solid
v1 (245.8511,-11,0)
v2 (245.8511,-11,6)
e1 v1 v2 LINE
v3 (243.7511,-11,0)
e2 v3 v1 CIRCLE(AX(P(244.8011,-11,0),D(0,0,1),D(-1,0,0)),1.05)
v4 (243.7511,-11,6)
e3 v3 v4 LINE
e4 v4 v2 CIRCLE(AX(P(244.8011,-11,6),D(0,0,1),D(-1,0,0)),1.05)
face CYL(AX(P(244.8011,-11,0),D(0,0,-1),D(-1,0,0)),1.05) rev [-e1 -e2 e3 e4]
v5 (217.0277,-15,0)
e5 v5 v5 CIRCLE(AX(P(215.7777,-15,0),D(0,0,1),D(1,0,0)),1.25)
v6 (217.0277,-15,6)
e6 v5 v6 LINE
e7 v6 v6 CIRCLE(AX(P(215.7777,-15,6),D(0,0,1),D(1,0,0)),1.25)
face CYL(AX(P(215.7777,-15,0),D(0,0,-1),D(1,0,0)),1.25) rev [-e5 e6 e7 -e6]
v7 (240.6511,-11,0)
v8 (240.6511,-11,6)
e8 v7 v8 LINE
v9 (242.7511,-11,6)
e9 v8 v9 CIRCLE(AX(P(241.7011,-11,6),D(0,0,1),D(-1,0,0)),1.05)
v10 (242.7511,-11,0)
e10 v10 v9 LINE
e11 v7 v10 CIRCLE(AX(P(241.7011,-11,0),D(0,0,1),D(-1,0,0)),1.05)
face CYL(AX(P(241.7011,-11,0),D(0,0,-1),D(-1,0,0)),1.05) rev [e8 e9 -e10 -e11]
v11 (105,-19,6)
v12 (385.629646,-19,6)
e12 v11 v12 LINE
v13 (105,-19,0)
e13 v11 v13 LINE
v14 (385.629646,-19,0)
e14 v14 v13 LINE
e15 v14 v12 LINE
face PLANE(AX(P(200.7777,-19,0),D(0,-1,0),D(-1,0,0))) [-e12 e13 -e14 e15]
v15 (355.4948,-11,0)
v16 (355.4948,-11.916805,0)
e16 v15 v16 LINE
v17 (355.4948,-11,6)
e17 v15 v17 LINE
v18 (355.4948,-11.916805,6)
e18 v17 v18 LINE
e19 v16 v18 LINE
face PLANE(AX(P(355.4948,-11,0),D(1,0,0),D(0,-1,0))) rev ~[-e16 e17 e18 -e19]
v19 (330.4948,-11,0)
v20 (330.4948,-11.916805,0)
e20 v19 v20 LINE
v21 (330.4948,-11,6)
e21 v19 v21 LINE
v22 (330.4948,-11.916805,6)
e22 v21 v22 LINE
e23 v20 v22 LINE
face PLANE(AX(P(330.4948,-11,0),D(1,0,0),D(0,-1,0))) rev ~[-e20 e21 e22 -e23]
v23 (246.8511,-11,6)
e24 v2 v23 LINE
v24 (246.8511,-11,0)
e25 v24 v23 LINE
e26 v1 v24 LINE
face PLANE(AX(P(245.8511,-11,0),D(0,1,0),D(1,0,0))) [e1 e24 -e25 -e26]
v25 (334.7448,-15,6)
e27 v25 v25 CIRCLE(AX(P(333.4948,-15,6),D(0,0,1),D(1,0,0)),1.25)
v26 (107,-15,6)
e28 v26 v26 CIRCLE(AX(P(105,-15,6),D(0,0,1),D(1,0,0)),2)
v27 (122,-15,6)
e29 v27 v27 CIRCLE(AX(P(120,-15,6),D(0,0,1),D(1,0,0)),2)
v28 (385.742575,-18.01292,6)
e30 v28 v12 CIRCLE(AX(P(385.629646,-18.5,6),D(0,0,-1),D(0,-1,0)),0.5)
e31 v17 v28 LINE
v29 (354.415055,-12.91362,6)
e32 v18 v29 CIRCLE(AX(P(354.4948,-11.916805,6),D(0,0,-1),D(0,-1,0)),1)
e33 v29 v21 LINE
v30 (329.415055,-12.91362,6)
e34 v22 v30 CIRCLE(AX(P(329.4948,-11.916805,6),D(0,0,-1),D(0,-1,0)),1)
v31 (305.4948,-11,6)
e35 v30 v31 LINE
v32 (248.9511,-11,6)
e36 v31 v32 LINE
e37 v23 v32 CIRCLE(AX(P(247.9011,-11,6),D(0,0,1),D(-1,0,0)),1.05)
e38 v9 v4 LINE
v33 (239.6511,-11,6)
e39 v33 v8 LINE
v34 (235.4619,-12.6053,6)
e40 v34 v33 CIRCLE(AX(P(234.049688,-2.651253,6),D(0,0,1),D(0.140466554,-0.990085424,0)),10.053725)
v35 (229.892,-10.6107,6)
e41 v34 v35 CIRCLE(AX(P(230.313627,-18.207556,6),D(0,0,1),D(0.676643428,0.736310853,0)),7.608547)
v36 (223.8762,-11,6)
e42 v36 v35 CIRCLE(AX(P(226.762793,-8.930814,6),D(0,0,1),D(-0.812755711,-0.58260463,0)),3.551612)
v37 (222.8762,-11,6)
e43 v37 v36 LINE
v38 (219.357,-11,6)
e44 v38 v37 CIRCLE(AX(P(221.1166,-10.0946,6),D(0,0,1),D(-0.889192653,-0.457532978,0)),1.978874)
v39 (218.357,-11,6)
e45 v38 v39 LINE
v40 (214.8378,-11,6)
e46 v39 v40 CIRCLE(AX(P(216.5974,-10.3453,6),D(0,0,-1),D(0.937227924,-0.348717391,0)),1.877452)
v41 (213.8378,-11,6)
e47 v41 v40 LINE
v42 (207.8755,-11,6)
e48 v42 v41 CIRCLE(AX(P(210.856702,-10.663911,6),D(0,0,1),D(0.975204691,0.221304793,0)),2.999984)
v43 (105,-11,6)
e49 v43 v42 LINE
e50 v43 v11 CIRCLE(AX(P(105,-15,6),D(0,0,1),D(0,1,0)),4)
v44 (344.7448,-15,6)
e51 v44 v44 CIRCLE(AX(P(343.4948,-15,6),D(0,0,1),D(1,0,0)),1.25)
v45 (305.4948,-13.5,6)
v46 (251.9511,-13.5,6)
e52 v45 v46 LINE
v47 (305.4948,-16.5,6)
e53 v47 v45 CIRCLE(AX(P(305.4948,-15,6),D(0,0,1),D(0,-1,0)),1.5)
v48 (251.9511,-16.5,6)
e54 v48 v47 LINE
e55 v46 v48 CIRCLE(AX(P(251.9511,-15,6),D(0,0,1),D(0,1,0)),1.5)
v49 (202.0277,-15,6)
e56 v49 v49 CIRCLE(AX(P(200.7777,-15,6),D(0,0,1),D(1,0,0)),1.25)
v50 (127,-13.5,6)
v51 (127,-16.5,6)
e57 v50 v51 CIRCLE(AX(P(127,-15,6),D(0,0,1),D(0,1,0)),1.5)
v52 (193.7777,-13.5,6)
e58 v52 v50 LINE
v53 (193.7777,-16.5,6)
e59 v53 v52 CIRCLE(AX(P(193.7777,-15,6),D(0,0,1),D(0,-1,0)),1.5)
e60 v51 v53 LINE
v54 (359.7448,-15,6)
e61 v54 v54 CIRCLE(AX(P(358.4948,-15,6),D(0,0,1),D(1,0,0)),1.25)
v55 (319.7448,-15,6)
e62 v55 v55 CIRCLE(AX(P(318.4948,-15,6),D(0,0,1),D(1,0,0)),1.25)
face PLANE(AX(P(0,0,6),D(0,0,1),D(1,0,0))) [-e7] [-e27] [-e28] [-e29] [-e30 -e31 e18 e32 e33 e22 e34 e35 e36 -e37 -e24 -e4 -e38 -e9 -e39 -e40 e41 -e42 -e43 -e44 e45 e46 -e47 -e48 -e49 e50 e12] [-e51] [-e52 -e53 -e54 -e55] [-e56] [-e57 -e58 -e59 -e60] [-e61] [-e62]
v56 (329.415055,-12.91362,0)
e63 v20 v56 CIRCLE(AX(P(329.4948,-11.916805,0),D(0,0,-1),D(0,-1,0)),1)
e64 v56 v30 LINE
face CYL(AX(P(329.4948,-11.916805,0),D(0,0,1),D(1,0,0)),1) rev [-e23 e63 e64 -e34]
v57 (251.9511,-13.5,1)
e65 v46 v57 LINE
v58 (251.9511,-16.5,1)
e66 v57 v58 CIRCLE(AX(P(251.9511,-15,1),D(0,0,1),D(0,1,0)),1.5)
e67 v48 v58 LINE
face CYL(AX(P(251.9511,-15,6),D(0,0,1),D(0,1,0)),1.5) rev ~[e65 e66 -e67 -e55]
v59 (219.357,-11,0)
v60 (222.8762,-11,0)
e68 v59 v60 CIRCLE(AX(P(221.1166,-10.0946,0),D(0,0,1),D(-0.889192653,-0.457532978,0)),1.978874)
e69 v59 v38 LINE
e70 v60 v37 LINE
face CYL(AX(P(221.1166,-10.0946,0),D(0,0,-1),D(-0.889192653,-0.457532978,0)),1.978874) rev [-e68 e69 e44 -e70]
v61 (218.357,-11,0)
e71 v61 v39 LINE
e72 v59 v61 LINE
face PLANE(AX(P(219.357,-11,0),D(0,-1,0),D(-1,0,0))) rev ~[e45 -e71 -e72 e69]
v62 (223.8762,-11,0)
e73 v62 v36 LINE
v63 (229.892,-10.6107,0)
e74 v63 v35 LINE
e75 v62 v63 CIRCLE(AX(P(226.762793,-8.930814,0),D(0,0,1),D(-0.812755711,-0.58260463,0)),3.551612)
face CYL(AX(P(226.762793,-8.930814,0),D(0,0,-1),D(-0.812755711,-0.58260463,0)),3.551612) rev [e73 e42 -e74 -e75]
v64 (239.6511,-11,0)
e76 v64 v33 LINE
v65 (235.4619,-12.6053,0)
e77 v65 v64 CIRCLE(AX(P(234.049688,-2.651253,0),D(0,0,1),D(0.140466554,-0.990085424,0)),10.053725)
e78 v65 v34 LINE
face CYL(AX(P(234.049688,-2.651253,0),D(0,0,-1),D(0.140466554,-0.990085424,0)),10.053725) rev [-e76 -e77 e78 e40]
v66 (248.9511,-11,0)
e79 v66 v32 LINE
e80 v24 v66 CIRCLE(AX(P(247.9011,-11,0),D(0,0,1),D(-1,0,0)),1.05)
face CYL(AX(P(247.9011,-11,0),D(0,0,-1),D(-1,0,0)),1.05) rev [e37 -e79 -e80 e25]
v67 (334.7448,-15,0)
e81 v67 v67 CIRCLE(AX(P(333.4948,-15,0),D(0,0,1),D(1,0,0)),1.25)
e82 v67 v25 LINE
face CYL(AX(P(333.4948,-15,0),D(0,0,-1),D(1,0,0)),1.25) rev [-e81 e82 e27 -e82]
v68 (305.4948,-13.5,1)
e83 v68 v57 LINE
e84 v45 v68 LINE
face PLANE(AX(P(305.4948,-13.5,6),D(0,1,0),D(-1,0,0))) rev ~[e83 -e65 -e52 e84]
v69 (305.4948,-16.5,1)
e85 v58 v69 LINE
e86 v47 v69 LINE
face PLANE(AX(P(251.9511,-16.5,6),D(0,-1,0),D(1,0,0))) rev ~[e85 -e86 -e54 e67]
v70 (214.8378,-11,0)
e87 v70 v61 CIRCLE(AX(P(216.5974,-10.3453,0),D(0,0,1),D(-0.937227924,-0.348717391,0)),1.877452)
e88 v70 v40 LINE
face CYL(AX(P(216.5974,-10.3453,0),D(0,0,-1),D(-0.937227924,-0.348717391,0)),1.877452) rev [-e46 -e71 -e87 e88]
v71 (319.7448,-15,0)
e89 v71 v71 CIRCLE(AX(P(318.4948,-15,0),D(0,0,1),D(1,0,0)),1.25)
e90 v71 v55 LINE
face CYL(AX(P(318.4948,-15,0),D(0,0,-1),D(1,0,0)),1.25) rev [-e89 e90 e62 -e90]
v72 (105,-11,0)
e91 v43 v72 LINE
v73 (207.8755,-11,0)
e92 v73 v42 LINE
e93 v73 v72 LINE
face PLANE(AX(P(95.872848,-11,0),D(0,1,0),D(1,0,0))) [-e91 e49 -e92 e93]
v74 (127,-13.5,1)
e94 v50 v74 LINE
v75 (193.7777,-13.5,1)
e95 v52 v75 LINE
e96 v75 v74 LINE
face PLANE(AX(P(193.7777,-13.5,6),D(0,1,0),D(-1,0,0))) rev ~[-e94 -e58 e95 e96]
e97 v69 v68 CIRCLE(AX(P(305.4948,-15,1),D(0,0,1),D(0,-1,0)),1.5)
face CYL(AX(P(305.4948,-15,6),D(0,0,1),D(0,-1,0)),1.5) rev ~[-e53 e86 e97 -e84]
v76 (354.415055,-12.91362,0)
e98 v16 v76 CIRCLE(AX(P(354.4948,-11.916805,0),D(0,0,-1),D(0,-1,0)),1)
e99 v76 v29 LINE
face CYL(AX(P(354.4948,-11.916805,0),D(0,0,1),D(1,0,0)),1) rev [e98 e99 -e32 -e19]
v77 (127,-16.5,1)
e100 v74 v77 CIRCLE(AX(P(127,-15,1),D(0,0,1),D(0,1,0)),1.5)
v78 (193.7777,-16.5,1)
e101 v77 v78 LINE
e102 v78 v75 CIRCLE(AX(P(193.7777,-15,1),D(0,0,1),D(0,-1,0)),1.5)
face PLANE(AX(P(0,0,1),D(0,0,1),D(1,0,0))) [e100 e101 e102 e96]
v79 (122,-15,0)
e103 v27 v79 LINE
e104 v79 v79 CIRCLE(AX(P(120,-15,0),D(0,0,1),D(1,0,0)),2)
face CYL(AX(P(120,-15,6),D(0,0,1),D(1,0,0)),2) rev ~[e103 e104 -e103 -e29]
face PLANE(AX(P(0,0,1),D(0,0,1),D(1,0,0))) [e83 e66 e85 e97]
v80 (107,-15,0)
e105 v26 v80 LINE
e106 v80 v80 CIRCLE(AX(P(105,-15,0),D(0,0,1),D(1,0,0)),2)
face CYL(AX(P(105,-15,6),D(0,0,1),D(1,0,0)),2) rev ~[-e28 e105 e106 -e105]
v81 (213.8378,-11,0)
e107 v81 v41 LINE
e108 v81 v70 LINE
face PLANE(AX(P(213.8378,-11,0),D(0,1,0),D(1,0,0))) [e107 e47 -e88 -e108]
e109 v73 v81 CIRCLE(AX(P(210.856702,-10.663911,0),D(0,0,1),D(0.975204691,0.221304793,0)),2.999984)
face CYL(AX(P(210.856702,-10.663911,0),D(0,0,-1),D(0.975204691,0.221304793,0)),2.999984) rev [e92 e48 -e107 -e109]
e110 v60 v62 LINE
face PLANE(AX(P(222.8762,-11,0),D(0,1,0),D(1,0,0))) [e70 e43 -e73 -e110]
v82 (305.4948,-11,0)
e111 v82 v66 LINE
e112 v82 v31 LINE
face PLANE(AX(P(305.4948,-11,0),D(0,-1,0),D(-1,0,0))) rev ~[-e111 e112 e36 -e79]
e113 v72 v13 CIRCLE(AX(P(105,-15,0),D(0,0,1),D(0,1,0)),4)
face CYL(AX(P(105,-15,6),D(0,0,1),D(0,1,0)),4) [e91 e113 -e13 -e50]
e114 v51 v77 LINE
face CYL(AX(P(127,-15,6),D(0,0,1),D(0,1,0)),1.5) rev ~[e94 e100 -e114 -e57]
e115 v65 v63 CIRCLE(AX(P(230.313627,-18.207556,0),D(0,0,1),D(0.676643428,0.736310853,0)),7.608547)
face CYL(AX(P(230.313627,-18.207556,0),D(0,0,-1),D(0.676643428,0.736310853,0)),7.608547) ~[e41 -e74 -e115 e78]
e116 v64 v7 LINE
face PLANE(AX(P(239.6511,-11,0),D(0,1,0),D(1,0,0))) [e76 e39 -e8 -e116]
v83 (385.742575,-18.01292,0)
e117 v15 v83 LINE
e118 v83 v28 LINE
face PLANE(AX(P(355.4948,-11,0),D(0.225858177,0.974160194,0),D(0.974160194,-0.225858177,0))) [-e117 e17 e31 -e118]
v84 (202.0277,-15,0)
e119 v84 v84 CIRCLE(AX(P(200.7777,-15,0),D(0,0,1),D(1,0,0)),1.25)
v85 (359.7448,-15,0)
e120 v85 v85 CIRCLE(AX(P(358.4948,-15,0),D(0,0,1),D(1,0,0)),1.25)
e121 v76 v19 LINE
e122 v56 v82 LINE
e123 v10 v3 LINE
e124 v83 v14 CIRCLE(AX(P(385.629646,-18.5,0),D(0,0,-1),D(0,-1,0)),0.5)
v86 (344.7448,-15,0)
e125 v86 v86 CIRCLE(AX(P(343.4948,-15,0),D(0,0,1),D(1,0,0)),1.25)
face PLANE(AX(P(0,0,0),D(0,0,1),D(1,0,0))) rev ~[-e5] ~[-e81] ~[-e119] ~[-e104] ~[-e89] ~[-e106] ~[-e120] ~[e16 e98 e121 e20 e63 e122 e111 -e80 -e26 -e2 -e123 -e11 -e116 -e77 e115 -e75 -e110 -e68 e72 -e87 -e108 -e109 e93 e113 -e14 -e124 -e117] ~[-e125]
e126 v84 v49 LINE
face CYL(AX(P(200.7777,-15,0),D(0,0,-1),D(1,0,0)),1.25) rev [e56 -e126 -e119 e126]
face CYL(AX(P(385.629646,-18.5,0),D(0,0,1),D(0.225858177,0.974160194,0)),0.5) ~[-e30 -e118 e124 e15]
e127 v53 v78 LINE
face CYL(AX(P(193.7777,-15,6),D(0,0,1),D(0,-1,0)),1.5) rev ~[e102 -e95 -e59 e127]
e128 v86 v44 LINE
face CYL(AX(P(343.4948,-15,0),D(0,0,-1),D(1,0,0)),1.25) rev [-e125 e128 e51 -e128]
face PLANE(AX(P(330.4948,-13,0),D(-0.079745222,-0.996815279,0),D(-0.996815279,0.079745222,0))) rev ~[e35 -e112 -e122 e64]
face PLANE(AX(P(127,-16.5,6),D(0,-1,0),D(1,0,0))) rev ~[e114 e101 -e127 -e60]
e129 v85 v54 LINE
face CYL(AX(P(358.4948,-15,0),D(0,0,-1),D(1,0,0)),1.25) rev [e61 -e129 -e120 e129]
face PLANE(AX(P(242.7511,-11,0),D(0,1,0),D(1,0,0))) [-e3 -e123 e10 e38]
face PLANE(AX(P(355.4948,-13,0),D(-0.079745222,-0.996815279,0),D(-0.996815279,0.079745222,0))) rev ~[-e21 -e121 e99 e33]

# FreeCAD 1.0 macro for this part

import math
import FreeCAD as App
import Part
import Sketcher
from FreeCAD import Vector
Q = App.Units.Quantity


def edges_at(feature, points):
    """Names of the edges that pass closest to the given points."""
    edges = feature.Shape.Edges
    near = lambda p: min(range(len(edges)), key=lambda i: edges[i].distToShape(Part.Vertex(*p))[0])
    return sorted({f"Edge{near(p) + 1}" for p in points})

doc = App.newDocument("Part")
body = doc.addObject("PartDesign::Body", "Body")

# Sketch on XY plane
sketch1 = doc.addObject("Sketcher::SketchObject", "Sketch")
body.addObject(sketch1)
sketch1.AttachmentSupport = (doc.XY_Plane, [""])
sketch1.MapMode = "FlatFace"
sketch1.addGeometry([
    Part.ArcOfCircle(Part.Circle(Vector(80, -15, 0), Vector(0, 0, 1), 4), math.radians(90), math.radians(270)),  # 0
    Part.LineSegment(Vector(80, -19, 0), Vector(390, -19, 0)),  # 1
    Part.LineSegment(Vector(390, -19, 0), Vector(355.5, -11, 0)),  # 2
    Part.LineSegment(Vector(355.5, -11, 0), Vector(355.5, -13, 0)),  # 3
    Part.LineSegment(Vector(355.5, -13, 0), Vector(330.5, -11, 0)),  # 4
    Part.LineSegment(Vector(330.5, -11, 0), Vector(330.5, -13, 0)),  # 5
    Part.LineSegment(Vector(330.5, -13, 0), Vector(305.5, -11, 0)),  # 6
    Part.LineSegment(Vector(305.5, -11, 0), Vector(249, -11, 0)),  # 7
    Part.ArcOfCircle(Part.Circle(Vector(247.9, -11, 0), Vector(0, 0, 1), 1.1), math.radians(180), math.radians(360)),  # 8
    Part.LineSegment(Vector(246.9, -11, 0), Vector(245.9, -11, 0)),  # 9
    Part.ArcOfCircle(Part.Circle(Vector(244.8, -11, 0), Vector(0, 0, 1), 1), math.radians(180), math.radians(360)),  # 10
    Part.LineSegment(Vector(243.8, -11, 0), Vector(242.8, -11, 0)),  # 11
    Part.ArcOfCircle(Part.Circle(Vector(241.7, -11, 0), Vector(0, 0, 1), 1), math.radians(180), math.radians(360)),  # 12
    Part.LineSegment(Vector(240.7, -11, 0), Vector(239.7, -11, 0)),  # 13
    Part.ArcOfCircle(Part.Circle(Vector(234, -2.7, 0), Vector(0, 0, 1), 10.1), math.radians(-82), math.radians(-56)),  # 14
    Part.ArcOfCircle(Part.Circle(Vector(230.3, -18.2, 0), Vector(0, 0, 1), 7.6), math.radians(47), math.radians(93)),  # 15
    Part.ArcOfCircle(Part.Circle(Vector(226.8, -8.9, 0), Vector(0, 0, 1), 3.6), math.radians(-144), math.radians(-28)),  # 16
    Part.LineSegment(Vector(223.9, -11, 0), Vector(222.9, -11, 0)),  # 17
    Part.ArcOfCircle(Part.Circle(Vector(221.1, -10.1, 0), Vector(0, 0, 1), 2), math.radians(-153), math.radians(-27)),  # 18
    Part.LineSegment(Vector(219.4, -11, 0), Vector(218.4, -11, 0)),  # 19
    Part.ArcOfCircle(Part.Circle(Vector(216.6, -10.3, 0), Vector(0, 0, 1), 1.9), math.radians(-160), math.radians(-20)),  # 20
    Part.LineSegment(Vector(214.8, -11, 0), Vector(213.8, -11, 0)),  # 21
    Part.ArcOfCircle(Part.Circle(Vector(210.9, -10.7, 0), Vector(0, 0, 1), 3), math.radians(-174), math.radians(-6)),  # 22
    Part.LineSegment(Vector(207.9, -11, 0), Vector(80, -11, 0)),  # 23
    Part.Circle(Vector(80, -15, 0), Vector(0, 0, 1), 2),  # 24
    Part.Circle(Vector(95, -15, 0), Vector(0, 0, 1), 2),  # 25
    Part.Circle(Vector(358.5, -15, 0), Vector(0, 0, 1), 1.2),  # 26
    Part.Circle(Vector(318.5, -15, 0), Vector(0, 0, 1), 1.2),  # 27
    Part.Circle(Vector(333.5, -15, 0), Vector(0, 0, 1), 1.2),  # 28
    Part.Circle(Vector(343.5, -15, 0), Vector(0, 0, 1), 1.2),  # 29
    Part.Circle(Vector(200.8, -15, 0), Vector(0, 0, 1), 1.2),  # 30
    Part.Circle(Vector(215.8, -15, 0), Vector(0, 0, 1), 1.2),  # 31
], False)
sketch1.addConstraint([
    Sketcher.Constraint("Tangent", 0, 2, 1, 1),
    Sketcher.Constraint("Coincident", 1, 2, 2, 1),
    Sketcher.Constraint("Coincident", 2, 2, 3, 1),
    Sketcher.Constraint("Coincident", 3, 2, 4, 1),
    Sketcher.Constraint("Coincident", 4, 2, 5, 1),
    Sketcher.Constraint("Coincident", 5, 2, 6, 1),
    Sketcher.Constraint("Coincident", 6, 2, 7, 1),
    Sketcher.Constraint("Coincident", 7, 2, 8, 2),
    Sketcher.Constraint("Coincident", 8, 1, 9, 1),
    Sketcher.Constraint("Coincident", 9, 2, 10, 2),
    Sketcher.Constraint("Coincident", 10, 1, 11, 1),
    Sketcher.Constraint("Coincident", 11, 2, 12, 2),
    Sketcher.Constraint("Coincident", 12, 1, 13, 1),
    Sketcher.Constraint("Coincident", 13, 2, 14, 2),
    Sketcher.Constraint("Coincident", 14, 1, 15, 1),
    Sketcher.Constraint("Coincident", 15, 2, 16, 2),
    Sketcher.Constraint("Coincident", 16, 1, 17, 1),
    Sketcher.Constraint("Coincident", 17, 2, 18, 2),
    Sketcher.Constraint("Coincident", 18, 1, 19, 1),
    Sketcher.Constraint("Coincident", 19, 2, 20, 2),
    Sketcher.Constraint("Coincident", 20, 1, 21, 1),
    Sketcher.Constraint("Coincident", 21, 2, 22, 2),
    Sketcher.Constraint("Coincident", 22, 1, 23, 1),
    Sketcher.Constraint("Tangent", 23, 2, 0, 1),
    Sketcher.Constraint("Horizontal", 1),
    Sketcher.Constraint("Vertical", 3),
    Sketcher.Constraint("Vertical", 5),
    Sketcher.Constraint("Horizontal", 7),
    Sketcher.Constraint("Horizontal", 9),
    Sketcher.Constraint("Horizontal", 11),
    Sketcher.Constraint("Horizontal", 13),
    Sketcher.Constraint("Horizontal", 17),
    Sketcher.Constraint("Horizontal", 19),
    Sketcher.Constraint("Horizontal", 21),
    Sketcher.Constraint("Horizontal", 23),
    Sketcher.Constraint("Coincident", 24, 3, 0, 3),
    Sketcher.Constraint("Equal", 8, 10),
    Sketcher.Constraint("Equal", 10, 12),
    Sketcher.Constraint("Equal", 24, 25),
    Sketcher.Constraint("Equal", 26, 27),
    Sketcher.Constraint("Equal", 27, 28),
    Sketcher.Constraint("Equal", 28, 29),
    Sketcher.Constraint("Equal", 29, 30),
    Sketcher.Constraint("Equal", 30, 31),
    Sketcher.Constraint("Parallel", 4, 6),
    Sketcher.Constraint("Horizontal", 8, 3, 10, 3),
    Sketcher.Constraint("Horizontal", 10, 3, 12, 3),
    Sketcher.Constraint("Horizontal", 24, 3, 25, 3),
    Sketcher.Constraint("Horizontal", 25, 3, 26, 3),
    Sketcher.Constraint("Horizontal", 26, 3, 27, 3),
    Sketcher.Constraint("Horizontal", 27, 3, 28, 3),
    Sketcher.Constraint("Horizontal", 28, 3, 29, 3),
    Sketcher.Constraint("Horizontal", 29, 3, 30, 3),
    Sketcher.Constraint("Horizontal", 30, 3, 31, 3),
    Sketcher.Constraint("Horizontal", 12, 3, 2, 2),
    Sketcher.Constraint("Horizontal", 2, 2, 4, 2),
    Sketcher.Constraint("Horizontal", 3, 2, 5, 2),
    Sketcher.Constraint("Horizontal", 4, 2, 6, 2),
    Sketcher.Constraint("Horizontal", 7, 2, 8, 1),
    Sketcher.Constraint("Horizontal", 9, 2, 10, 1),
    Sketcher.Constraint("Horizontal", 11, 2, 12, 1),
    Sketcher.Constraint("Horizontal", 13, 2, 16, 1),
    Sketcher.Constraint("Horizontal", 17, 2, 18, 1),
    Sketcher.Constraint("Horizontal", 19, 2, 20, 1),
    Sketcher.Constraint("Horizontal", 21, 2, 22, 1),
    Sketcher.Constraint("Equal", 9, 11),
    Sketcher.Constraint("Equal", 11, 13),
    Sketcher.Constraint("Equal", 13, 17),
    Sketcher.Constraint("Equal", 17, 19),
    Sketcher.Constraint("Equal", 19, 21),
    Sketcher.Constraint("Diameter", 24, Q("4 mm")),
    Sketcher.Constraint("Radius", 0, Q("4 mm")),
    Sketcher.Constraint("Radius", 22, Q("3 mm")),
    Sketcher.Constraint("Diameter", 26, Q("2.5 mm")),
    Sketcher.Constraint("DistanceX", 9, 2, 9, 1, Q("1 mm")),
    Sketcher.Constraint("DistanceY", 3, 2, 3, 1, Q("2 mm")),
    Sketcher.Constraint("Radius", 8, Q("1.05 mm")),
    Sketcher.Constraint("DistanceY", 0, 3, -1, 1, Q("15 mm")),
    Sketcher.Constraint("DistanceX", -1, 1, 1, 2, Q("390 mm")),
    Sketcher.Constraint("DistanceX", 0, 3, 25, 3, Q("15 mm")),
    Sketcher.Constraint("DistanceX", 27, 3, 26, 3, Q("40 mm")),
    Sketcher.Constraint("DistanceX", 27, 3, 28, 3, Q("15 mm")),
    Sketcher.Constraint("DistanceX", 28, 3, 29, 3, Q("10 mm")),
    Sketcher.Constraint("DistanceX", 2, 2, 26, 3, Q("3 mm")),
    Sketcher.Constraint("DistanceX", 4, 2, 28, 3, Q("3 mm")),
    Sketcher.Constraint("DistanceX", 1, 1, 1, 2, Q("310 mm")),
    Sketcher.Constraint("Radius", 14, Q("10.0537 mm")),
    Sketcher.Constraint("Radius", 15, Q("7.6086 mm")),
    Sketcher.Constraint("Radius", 16, Q("3.5516 mm")),
    Sketcher.Constraint("Radius", 18, Q("1.9789 mm")),
    Sketcher.Constraint("Radius", 20, Q("1.8775 mm")),
    Sketcher.Constraint("DistanceX", 22, 3, 18, 3, Q("10.26 mm")),
    Sketcher.Constraint("DistanceY", 15, 2, 16, 3, Q("1.68 mm")),
    Sketcher.Constraint("DistanceX", 15, 2, 14, 1, Q("5.57 mm")),
    Sketcher.Constraint("DistanceX", 20, 1, 31, 3, Q("0.94 mm")),
    Sketcher.Constraint("DistanceX", 7, 2, 7, 1, Q("56.5437 mm")),
    Sketcher.Constraint("DistanceX", 23, 2, 23, 1, Q("127.8755 mm")),
    Sketcher.Constraint("DistanceX", -1, 1, 8, 3, Q("247.901 mm")),
    Sketcher.Constraint("DistanceY", 22, 3, -1, 1, Q("10.664 mm")),
    Sketcher.Constraint("DistanceX", -1, 1, 14, 1, Q("235.462 mm")),
    Sketcher.Constraint("DistanceX", -1, 1, 18, 1, Q("219.357 mm")),
    Sketcher.Constraint("DistanceX", 15, 3, 14, 3, Q("3.736 mm")),
    Sketcher.Constraint("DistanceX", 30, 3, 22, 3, Q("10.079 mm")),
])
pad1 = doc.addObject("PartDesign::Pad", "Pad")
body.addObject(pad1)
pad1.Profile = sketch1
pad1.Length = 6

# Sketch on XY plane
sketch2 = doc.addObject("Sketcher::SketchObject", "Sketch001")
body.addObject(sketch2)
sketch2.AttachmentSupport = (doc.XY_Plane, [""])
sketch2.MapMode = "FlatFace"
sketch2.AttachmentOffset = App.Placement(Vector(0, 0, 6), App.Rotation())
sketch2.addGeometry([
    Part.LineSegment(Vector(105, -11, 0), Vector(80, -11, 0)),  # 0
    Part.ArcOfCircle(Part.Circle(Vector(80, -15, 0), Vector(0, 0, 1), 4), math.radians(90), math.radians(270)),  # 1
    Part.LineSegment(Vector(80, -19, 0), Vector(105, -19, 0)),  # 2
    Part.ArcOfCircle(Part.Circle(Vector(105, -15, 0), Vector(0, 0, 1), 4), math.radians(90), math.radians(270)),  # 3
    Part.Circle(Vector(80, -15, 0), Vector(0, 0, 1), 2),  # 4
    Part.Circle(Vector(95, -15, 0), Vector(0, 0, 1), 2),  # 5
    Part.Circle(Vector(105, -15, 0), Vector(0, 0, 1), 2),  # 6
    Part.Circle(Vector(120, -15, 0), Vector(0, 0, 1), 2),  # 7
], False)
sketch2.addConstraint([
    Sketcher.Constraint("Tangent", 0, 2, 1, 1),
    Sketcher.Constraint("Tangent", 1, 2, 2, 1),
    Sketcher.Constraint("Tangent", 2, 2, 3, 2),
    Sketcher.Constraint("Tangent", 3, 1, 0, 1),
    Sketcher.Constraint("Horizontal", 0),
    Sketcher.Constraint("Horizontal", 2),
    Sketcher.Constraint("Coincident", 4, 3, 1, 3),
    Sketcher.Constraint("Coincident", 6, 3, 3, 3),
    Sketcher.Constraint("Equal", 4, 5),
    Sketcher.Constraint("Equal", 5, 6),
    Sketcher.Constraint("Equal", 6, 7),
    Sketcher.Constraint("Horizontal", 4, 3, 5, 3),
    Sketcher.Constraint("Horizontal", 6, 3, 7, 3),
    Sketcher.Constraint("Diameter", 4, Q("4 mm")),
    Sketcher.Constraint("Radius", 1, Q("4 mm")),
    Sketcher.Constraint("DistanceX", 0, 2, 0, 1, Q("25 mm")),
    Sketcher.Constraint("DistanceY", 1, 3, -1, 1, Q("15 mm")),
    Sketcher.Constraint("DistanceX", 1, 3, 5, 3, Q("15 mm")),
    Sketcher.Constraint("DistanceX", 3, 3, 7, 3, Q("15 mm")),
    Sketcher.Constraint("DistanceX", -1, 1, 1, 3, Q("80 mm")),
])
pocket1 = doc.addObject("PartDesign::Pocket", "Pocket")
body.addObject(pocket1)
pocket1.Profile = sketch2
pocket1.Length = 10
doc.recompute()

fillet = doc.addObject("PartDesign::Fillet", "Fillet")
body.addObject(fillet)
fillet.Base = (pocket1, edges_at(pocket1, [(390, -19, 3)]))
fillet.Radius = 0.5
doc.recompute()

fillet2 = doc.addObject("PartDesign::Fillet", "Fillet001")
body.addObject(fillet2)
fillet2.Base = (fillet, edges_at(fillet, [(355.495, -13, 3), (330.495, -13, 3)]))
fillet2.Radius = 1

# Sketch on XY plane
sketch3 = doc.addObject("Sketcher::SketchObject", "Sketch002")
body.addObject(sketch3)
sketch3.AttachmentSupport = (doc.XY_Plane, [""])
sketch3.MapMode = "FlatFace"
sketch3.AttachmentOffset = App.Placement(Vector(0, 0, 6), App.Rotation())
sketch3.addGeometry([
    Part.ArcOfCircle(Part.Circle(Vector(127, -15, 0), Vector(0, 0, 1), 1.5), math.radians(90), math.radians(270)),  # 0
    Part.LineSegment(Vector(127, -16.5, 0), Vector(193.8, -16.5, 0)),  # 1
    Part.ArcOfCircle(Part.Circle(Vector(193.8, -15, 0), Vector(0, 0, 1), 1.5), math.radians(-90), math.radians(90)),  # 2
    Part.LineSegment(Vector(193.8, -13.5, 0), Vector(127, -13.5, 0)),  # 3
    Part.ArcOfCircle(Part.Circle(Vector(252, -15, 0), Vector(0, 0, 1), 1.5), math.radians(90), math.radians(270)),  # 4
    Part.LineSegment(Vector(252, -16.5, 0), Vector(305.5, -16.5, 0)),  # 5
    Part.ArcOfCircle(Part.Circle(Vector(305.5, -15, 0), Vector(0, 0, 1), 1.5), math.radians(-90), math.radians(90)),  # 6
    Part.LineSegment(Vector(305.5, -13.5, 0), Vector(252, -13.5, 0)),  # 7
], False)
sketch3.addConstraint([
    Sketcher.Constraint("Tangent", 0, 2, 1, 1),
    Sketcher.Constraint("Tangent", 1, 2, 2, 1),
    Sketcher.Constraint("Tangent", 2, 2, 3, 1),
    Sketcher.Constraint("Tangent", 3, 2, 0, 1),
    Sketcher.Constraint("Tangent", 4, 2, 5, 1),
    Sketcher.Constraint("Tangent", 5, 2, 6, 1),
    Sketcher.Constraint("Tangent", 6, 2, 7, 1),
    Sketcher.Constraint("Tangent", 7, 2, 4, 1),
    Sketcher.Constraint("Horizontal", 1),
    Sketcher.Constraint("Horizontal", 3),
    Sketcher.Constraint("Horizontal", 5),
    Sketcher.Constraint("Horizontal", 7),
    Sketcher.Constraint("Equal", 2, 4),
    Sketcher.Constraint("Horizontal", 2, 3, 4, 3),
    Sketcher.Constraint("Radius", 0, Q("1.5 mm")),
    Sketcher.Constraint("DistanceX", -1, 1, 0, 3, Q("127 mm")),
    Sketcher.Constraint("DistanceY", 0, 3, -1, 1, Q("15 mm")),
    Sketcher.Constraint("DistanceX", 1, 1, 1, 2, Q("66.7777 mm")),
    Sketcher.Constraint("DistanceX", 5, 1, 5, 2, Q("53.5437 mm")),
    Sketcher.Constraint("DistanceX", -1, 1, 4, 3, Q("251.951 mm")),
])
pocket2 = doc.addObject("PartDesign::Pocket", "Pocket001")
body.addObject(pocket2)
pocket2.Profile = sketch3
pocket2.Length = 5

doc.recompute()
